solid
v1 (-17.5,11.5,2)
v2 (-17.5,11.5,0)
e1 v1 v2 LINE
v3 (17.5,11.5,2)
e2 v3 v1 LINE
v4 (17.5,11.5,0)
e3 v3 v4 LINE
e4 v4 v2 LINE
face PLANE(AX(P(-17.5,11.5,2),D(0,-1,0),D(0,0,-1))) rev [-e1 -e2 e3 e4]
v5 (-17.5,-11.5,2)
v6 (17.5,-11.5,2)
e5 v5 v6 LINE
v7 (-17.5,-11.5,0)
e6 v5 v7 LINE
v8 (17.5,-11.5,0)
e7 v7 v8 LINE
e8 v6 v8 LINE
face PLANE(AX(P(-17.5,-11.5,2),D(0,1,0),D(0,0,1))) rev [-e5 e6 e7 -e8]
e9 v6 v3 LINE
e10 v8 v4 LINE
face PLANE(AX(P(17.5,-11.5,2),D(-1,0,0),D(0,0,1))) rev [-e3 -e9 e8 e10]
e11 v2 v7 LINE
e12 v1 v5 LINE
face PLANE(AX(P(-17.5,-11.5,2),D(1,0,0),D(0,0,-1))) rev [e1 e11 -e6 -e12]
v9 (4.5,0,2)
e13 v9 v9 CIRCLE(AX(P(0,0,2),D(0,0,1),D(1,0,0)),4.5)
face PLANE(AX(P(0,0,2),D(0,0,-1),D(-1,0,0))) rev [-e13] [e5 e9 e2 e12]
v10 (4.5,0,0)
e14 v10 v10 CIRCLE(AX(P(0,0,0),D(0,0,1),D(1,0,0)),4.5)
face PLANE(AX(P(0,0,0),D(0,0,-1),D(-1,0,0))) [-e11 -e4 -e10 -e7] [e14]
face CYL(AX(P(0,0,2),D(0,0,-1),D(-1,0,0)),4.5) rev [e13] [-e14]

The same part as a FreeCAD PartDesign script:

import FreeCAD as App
import Part
import Sketcher

V = App.Vector
Q = App.Units.Quantity

doc = App.newDocument("Part")
body = doc.addObject("PartDesign::Body", "Body")

# Sketch on XY plane
sketch1 = body.newObject("Sketcher::SketchObject", "Sketch")
sketch1.AttachmentSupport = (doc.getObject("XY_Plane"), [""])
sketch1.MapMode = "FlatFace"
sketch1.addGeometry([
    Part.LineSegment(V(-17.5, 11.5, 0), V(-17.5, -11.5, 0)),  # 0
    Part.LineSegment(V(-17.5, -11.5, 0), V(17.5, -11.5, 0)),  # 1
    Part.LineSegment(V(17.5, -11.5, 0), V(17.5, 11.5, 0)),  # 2
    Part.LineSegment(V(17.5, 11.5, 0), V(-17.5, 11.5, 0)),  # 3
    Part.Circle(V(0, 0, 0), V(0, 0, 1), 4.5),  # 4
], False)
sketch1.addConstraint([
    Sketcher.Constraint("Coincident", 0, 2, 1, 1),
    Sketcher.Constraint("Coincident", 1, 2, 2, 1),
    Sketcher.Constraint("Coincident", 2, 2, 3, 1),
    Sketcher.Constraint("Coincident", 3, 2, 0, 1),
    Sketcher.Constraint("Vertical", 0),
    Sketcher.Constraint("Horizontal", 1),
    Sketcher.Constraint("Vertical", 2),
    Sketcher.Constraint("Horizontal", 3),
    Sketcher.Constraint("Coincident", 4, 3, -1, 1),
    Sketcher.Constraint("Symmetric", 0, 2, 2, 2, -1, 1),
    Sketcher.Constraint("Diameter", 4, Q("9 mm")),
    Sketcher.Constraint("DistanceX", 1, 1, 1, 2, Q("35 mm")),
    Sketcher.Constraint("DistanceY", 0, 2, 0, 1, Q("23 mm")),
])
pad1 = body.newObject("PartDesign::Pad", "Pad")
pad1.Profile = sketch1
pad1.Length = 2

doc.recompute()
